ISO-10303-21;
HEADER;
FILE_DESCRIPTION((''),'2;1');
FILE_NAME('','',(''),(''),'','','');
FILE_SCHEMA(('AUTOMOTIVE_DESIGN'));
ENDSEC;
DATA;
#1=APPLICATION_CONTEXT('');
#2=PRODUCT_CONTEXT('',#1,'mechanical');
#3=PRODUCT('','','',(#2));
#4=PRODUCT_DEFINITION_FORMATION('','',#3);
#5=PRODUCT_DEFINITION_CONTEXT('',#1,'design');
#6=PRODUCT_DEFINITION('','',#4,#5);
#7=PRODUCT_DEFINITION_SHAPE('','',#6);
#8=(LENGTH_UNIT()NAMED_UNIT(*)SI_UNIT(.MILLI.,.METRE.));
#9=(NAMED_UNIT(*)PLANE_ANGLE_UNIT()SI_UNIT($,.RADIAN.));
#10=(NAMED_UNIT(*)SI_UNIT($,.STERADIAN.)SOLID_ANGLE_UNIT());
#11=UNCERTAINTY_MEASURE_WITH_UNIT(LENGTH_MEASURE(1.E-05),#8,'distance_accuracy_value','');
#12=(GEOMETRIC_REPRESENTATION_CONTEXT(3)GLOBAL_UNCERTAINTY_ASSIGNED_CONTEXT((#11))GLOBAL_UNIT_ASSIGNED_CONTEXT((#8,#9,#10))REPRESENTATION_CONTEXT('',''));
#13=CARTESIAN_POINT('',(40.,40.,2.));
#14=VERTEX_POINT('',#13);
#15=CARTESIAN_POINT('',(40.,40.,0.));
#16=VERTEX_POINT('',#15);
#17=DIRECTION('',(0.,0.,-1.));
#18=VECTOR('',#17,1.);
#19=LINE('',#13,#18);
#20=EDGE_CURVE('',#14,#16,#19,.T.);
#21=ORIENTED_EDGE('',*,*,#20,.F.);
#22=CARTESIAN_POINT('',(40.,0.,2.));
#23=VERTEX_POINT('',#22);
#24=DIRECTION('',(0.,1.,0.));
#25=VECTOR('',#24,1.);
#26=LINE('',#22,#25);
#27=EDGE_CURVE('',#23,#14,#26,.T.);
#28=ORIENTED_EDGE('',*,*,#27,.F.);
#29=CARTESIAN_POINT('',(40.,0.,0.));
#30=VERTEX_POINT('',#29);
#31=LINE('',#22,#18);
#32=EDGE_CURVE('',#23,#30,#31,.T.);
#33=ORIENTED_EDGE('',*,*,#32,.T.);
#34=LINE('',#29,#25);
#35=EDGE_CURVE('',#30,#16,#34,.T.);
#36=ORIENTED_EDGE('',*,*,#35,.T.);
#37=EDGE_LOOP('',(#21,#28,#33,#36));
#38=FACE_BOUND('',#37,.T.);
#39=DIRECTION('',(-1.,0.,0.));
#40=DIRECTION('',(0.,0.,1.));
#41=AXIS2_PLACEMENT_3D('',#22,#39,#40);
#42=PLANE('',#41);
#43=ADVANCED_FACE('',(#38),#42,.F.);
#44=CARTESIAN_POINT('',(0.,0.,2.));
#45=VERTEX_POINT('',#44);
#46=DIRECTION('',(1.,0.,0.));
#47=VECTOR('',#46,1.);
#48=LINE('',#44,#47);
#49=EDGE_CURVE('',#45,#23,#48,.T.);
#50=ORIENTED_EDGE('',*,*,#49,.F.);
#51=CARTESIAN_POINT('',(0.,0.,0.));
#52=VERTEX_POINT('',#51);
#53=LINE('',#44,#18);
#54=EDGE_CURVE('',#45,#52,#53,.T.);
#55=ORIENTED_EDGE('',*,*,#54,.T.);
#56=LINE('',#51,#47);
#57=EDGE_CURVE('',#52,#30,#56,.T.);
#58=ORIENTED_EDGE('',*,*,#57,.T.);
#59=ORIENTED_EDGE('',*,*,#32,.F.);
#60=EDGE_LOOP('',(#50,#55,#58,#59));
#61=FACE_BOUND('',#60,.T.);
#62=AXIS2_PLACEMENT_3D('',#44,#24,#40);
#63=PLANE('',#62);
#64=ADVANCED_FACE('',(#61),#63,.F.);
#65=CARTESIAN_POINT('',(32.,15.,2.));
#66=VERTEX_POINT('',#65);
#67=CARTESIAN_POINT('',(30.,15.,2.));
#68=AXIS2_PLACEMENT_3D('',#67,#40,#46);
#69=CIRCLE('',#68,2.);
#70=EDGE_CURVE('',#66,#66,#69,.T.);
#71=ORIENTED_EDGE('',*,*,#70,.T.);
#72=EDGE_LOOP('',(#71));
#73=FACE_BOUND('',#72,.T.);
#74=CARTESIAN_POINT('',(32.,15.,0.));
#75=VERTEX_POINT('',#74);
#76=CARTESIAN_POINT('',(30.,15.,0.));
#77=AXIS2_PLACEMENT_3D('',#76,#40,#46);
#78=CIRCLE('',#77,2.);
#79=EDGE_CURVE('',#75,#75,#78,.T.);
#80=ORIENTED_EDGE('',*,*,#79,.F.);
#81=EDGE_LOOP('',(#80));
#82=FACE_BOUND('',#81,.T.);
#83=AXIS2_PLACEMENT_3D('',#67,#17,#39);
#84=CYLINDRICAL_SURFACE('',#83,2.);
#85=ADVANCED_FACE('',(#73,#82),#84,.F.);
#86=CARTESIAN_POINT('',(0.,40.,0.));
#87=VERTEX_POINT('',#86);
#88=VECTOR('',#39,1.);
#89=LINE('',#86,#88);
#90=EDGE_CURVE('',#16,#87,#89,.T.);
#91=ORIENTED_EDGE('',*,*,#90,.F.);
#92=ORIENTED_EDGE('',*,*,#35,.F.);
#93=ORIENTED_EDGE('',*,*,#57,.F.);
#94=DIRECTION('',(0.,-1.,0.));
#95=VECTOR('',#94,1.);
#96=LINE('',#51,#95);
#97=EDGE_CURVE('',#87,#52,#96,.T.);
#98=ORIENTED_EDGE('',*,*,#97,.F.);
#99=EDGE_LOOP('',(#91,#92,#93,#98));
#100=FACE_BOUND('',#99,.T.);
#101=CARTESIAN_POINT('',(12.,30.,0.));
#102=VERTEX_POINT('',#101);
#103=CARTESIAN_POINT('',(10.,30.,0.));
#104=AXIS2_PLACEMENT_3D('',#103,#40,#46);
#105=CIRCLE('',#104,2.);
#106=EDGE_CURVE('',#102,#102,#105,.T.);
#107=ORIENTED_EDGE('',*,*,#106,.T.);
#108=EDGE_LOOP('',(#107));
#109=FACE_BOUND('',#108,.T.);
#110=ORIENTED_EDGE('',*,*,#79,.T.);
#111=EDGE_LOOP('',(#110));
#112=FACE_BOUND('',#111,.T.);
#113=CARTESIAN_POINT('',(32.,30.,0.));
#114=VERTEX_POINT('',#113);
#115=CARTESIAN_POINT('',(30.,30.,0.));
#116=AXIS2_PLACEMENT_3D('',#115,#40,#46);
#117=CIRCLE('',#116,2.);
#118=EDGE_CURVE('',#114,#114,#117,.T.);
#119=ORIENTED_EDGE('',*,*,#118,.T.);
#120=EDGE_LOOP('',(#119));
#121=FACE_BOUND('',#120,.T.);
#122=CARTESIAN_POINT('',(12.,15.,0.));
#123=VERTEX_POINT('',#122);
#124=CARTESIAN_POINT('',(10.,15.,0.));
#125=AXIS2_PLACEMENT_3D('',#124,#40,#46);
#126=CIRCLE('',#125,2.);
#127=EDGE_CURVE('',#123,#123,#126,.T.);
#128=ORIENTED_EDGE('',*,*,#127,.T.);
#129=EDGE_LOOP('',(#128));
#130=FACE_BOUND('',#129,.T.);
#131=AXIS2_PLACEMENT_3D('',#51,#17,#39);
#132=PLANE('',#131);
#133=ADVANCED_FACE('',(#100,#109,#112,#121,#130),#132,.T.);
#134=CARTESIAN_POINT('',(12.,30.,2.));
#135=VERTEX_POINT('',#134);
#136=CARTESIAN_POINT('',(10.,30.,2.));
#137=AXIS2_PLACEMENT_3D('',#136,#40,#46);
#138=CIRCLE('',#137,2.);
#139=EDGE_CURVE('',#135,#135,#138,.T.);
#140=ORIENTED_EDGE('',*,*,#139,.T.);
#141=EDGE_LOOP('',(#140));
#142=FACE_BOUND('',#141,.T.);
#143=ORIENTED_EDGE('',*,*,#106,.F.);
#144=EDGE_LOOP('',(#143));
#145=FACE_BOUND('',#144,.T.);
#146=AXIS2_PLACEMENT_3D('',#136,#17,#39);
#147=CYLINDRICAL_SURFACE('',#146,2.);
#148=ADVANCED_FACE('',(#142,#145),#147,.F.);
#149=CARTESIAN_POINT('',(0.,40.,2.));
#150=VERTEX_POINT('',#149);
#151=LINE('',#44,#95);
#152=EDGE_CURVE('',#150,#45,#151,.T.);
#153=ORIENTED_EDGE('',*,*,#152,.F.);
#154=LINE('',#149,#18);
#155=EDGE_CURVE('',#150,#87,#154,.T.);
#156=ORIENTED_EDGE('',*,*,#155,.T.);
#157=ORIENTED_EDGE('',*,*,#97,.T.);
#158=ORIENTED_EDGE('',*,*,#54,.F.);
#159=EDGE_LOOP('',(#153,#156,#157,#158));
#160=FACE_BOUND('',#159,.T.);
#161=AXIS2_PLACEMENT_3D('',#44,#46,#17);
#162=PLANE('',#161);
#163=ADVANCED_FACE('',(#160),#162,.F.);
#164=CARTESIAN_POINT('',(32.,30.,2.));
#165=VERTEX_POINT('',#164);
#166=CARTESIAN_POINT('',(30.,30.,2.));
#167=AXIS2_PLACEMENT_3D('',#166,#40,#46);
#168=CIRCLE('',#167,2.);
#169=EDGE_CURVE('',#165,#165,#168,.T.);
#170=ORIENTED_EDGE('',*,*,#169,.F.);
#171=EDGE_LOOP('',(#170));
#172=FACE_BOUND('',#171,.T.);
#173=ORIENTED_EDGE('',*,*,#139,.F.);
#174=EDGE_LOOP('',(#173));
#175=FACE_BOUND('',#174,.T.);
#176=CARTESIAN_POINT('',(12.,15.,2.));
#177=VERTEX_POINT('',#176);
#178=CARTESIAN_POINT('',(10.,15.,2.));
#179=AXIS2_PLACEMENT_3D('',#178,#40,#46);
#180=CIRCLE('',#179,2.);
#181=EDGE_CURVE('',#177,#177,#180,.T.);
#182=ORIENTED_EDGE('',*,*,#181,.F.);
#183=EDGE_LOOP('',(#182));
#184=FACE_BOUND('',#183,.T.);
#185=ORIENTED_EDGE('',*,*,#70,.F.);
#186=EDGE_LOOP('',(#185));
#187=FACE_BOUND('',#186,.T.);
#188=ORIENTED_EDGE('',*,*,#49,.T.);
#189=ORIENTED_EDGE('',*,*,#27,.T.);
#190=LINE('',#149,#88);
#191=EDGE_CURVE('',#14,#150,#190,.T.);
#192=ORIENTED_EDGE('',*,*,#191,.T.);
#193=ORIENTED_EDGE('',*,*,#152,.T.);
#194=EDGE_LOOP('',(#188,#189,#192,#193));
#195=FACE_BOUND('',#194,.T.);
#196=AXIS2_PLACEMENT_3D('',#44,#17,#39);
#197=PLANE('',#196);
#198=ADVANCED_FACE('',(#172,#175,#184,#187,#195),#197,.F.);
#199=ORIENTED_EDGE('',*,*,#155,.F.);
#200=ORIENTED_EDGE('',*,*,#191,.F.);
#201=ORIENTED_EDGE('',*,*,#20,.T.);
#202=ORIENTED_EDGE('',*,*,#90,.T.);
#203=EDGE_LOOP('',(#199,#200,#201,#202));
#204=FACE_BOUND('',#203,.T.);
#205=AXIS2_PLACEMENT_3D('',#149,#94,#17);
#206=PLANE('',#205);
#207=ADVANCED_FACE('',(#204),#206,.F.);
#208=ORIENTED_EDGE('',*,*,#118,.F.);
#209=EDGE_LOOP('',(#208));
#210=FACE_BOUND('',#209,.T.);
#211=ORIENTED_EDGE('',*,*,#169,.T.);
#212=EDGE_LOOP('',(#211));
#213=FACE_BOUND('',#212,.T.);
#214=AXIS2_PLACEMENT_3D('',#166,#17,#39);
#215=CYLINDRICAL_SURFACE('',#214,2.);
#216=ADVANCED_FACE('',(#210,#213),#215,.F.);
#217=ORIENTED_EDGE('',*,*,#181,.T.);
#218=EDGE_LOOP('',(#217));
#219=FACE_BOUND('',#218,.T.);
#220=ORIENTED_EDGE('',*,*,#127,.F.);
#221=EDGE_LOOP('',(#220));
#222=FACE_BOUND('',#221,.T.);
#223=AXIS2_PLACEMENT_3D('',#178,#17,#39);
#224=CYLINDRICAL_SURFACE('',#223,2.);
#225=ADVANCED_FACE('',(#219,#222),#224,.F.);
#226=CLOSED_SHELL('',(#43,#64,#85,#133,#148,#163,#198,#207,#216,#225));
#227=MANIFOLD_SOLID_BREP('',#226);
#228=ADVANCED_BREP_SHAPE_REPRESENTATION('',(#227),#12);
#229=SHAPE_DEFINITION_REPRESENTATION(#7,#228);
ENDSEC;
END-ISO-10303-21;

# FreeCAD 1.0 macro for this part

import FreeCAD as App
import Part
import Sketcher

V = App.Vector


def add_polygon(sketch, points):
    """Adds a closed chain of lines whose ends are joined by coincident constraints."""
    first, n = sketch.GeometryCount, len(points)
    for a, b in zip(points, points[1:] + points[:1]):
        sketch.addGeometry(Part.LineSegment(App.Vector(*a, 0), App.Vector(*b, 0)), False)
    for i in range(n):
        sketch.addConstraint(Sketcher.Constraint("Coincident", first + i, 2, first + (i + 1) % n, 1))

doc = App.newDocument("Part")
params = doc.addObject("Spreadsheet::Sheet", "Params")
for row, (alias, value) in enumerate([
    ("sketch1_diameter", "4 mm"),
    ("sketch1_width", "40 mm"),
    ("pad1_length", "2 mm"),
], start=1):
    params.set(f"A{row}", alias)
    params.set(f"B{row}", "=" + value)
    params.setAlias(f"B{row}", alias)

body = doc.addObject("PartDesign::Body", "Body")

sketch1 = body.newObject("Sketcher::SketchObject", "Sketch")
sketch1.AttachmentSupport = (doc.getObject("XY_Plane"), [""])
sketch1.MapMode = "FlatFace"
add_polygon(sketch1, [(0, 40), (0, 0), (40, 0), (40, 40)])
sketch1.addGeometry(Part.Circle(V(10, 15, 0), V(0, 0, 1), 2), False)
sketch1.addGeometry(Part.Circle(V(30, 15, 0), V(0, 0, 1), 2), False)
sketch1.addGeometry(Part.Circle(V(10, 30, 0), V(0, 0, 1), 2), False)
sketch1.addGeometry(Part.Circle(V(30, 30, 0), V(0, 0, 1), 2), False)
sketch1.addConstraint([
    Sketcher.Constraint("Vertical", 0),
    Sketcher.Constraint("Horizontal", 1),
    Sketcher.Constraint("Vertical", 2),
    Sketcher.Constraint("Horizontal", 3),
    Sketcher.Constraint("Coincident", 0, 2, -1, 1),
    Sketcher.Constraint("Equal", 4, 5),
    Sketcher.Constraint("Equal", 5, 6),
    Sketcher.Constraint("Equal", 6, 7),
    Sketcher.Constraint("Horizontal", 4, 3, 5, 3),
    Sketcher.Constraint("Horizontal", 6, 3, 7, 3),
    Sketcher.Constraint("Vertical", 4, 3, 6, 3),
    Sketcher.Constraint("Vertical", 5, 3, 7, 3),
    Sketcher.Constraint("Equal", 3, 0),
    Sketcher.Constraint("Diameter", 4, 4.0),
    Sketcher.Constraint("DistanceX", 1, 1, 1, 2, 40.0),
    Sketcher.Constraint("DistanceX", -1, 1, 4, 3, 10.0),
    Sketcher.Constraint("DistanceY", -1, 1, 4, 3, 15.0),
    Sketcher.Constraint("DistanceX", -1, 1, 5, 3, 30.0),
    Sketcher.Constraint("DistanceY", -1, 1, 6, 3, 30.0),
])
sketch1.setExpression("Constraints[17]", "Params.sketch1_diameter")
sketch1.setExpression("Constraints[18]", "Params.sketch1_width")
pad1 = body.newObject("PartDesign::Pad", "Pad")
pad1.Profile = sketch1
pad1.setExpression("Length", "Params.pad1_length")

doc.recompute()
